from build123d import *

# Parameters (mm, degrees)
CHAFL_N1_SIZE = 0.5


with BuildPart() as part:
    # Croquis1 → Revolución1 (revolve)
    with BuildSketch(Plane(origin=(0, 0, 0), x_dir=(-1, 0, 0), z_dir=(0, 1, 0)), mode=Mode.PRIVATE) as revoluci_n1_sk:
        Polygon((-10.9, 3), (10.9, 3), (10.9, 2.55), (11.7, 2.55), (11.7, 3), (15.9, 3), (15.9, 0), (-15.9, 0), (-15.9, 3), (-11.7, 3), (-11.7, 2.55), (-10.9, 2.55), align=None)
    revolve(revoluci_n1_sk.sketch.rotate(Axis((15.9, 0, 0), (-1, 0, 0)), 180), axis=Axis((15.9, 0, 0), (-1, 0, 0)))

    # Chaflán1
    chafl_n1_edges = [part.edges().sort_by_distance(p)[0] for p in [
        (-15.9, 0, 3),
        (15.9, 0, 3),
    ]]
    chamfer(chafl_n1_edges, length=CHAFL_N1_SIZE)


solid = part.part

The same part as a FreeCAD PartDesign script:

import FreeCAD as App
import Part
import Sketcher
from FreeCAD import Vector
Q = App.Units.Quantity


def edges_at(feature, points):
    """Names of the edges that pass closest to the given points."""
    edges = feature.Shape.Edges
    near = lambda p: min(range(len(edges)), key=lambda i: edges[i].distToShape(Part.Vertex(*p))[0])
    return sorted({f"Edge{near(p) + 1}" for p in points})


def add_polygon(sketch, points):
    """Adds a closed chain of lines whose ends are joined by coincident constraints."""
    first, n = sketch.GeometryCount, len(points)
    for a, b in zip(points, points[1:] + points[:1]):
        sketch.addGeometry(Part.LineSegment(App.Vector(*a, 0), App.Vector(*b, 0)), False)
    for i in range(n):
        sketch.addConstraint(Sketcher.Constraint("Coincident", first + i, 2, first + (i + 1) % n, 1))

doc = App.newDocument("Part")
body = doc.addObject("PartDesign::Body", "Body")

# Sketch on XZ plane
sketch1 = body.newObject("Sketcher::SketchObject", "Sketch")
sketch1.AttachmentSupport = (doc.getObject("XZ_Plane"), [""])
sketch1.MapMode = "FlatFace"
add_polygon(sketch1, [(-10.9, 3), (10.9, 3), (10.9, 2.55), (11.7, 2.55), (11.7, 3), (15.9, 3), (15.9, 0), (-15.9, 0), (-15.9, 3), (-11.7, 3), (-11.7, 2.55), (-10.9, 2.55)])  # lines 0-11
sketch1.addConstraint(Sketcher.Constraint("Horizontal", 0))
sketch1.addConstraint(Sketcher.Constraint("Vertical", 1))
sketch1.addConstraint(Sketcher.Constraint("Horizontal", 2))
sketch1.addConstraint(Sketcher.Constraint("Vertical", 3))
sketch1.addConstraint(Sketcher.Constraint("Horizontal", 4))
sketch1.addConstraint(Sketcher.Constraint("Vertical", 5))
sketch1.addConstraint(Sketcher.Constraint("Horizontal", 6))
sketch1.addConstraint(Sketcher.Constraint("Vertical", 7))
sketch1.addConstraint(Sketcher.Constraint("Horizontal", 8))
sketch1.addConstraint(Sketcher.Constraint("Vertical", 9))
sketch1.addConstraint(Sketcher.Constraint("Horizontal", 10))
sketch1.addConstraint(Sketcher.Constraint("Vertical", 11))
sketch1.addConstraint(Sketcher.Constraint("Symmetric", 5, 2, 6, 2, -1, 1))
sketch1.addConstraint(Sketcher.Constraint("Symmetric", 3, 2, 8, 2, -2))
sketch1.addConstraint(Sketcher.Constraint("Symmetric", 1, 2, 10, 2, -2))
sketch1.addConstraint(Sketcher.Constraint("Horizontal", 0, 2, 3, 2))
sketch1.addConstraint(Sketcher.Constraint("DistanceY", 5, 2, 5, 1, Q("3 mm")))
sketch1.addConstraint(Sketcher.Constraint("DistanceX", 0, 1, 0, 2, Q("21.8 mm")))
sketch1.addConstraint(Sketcher.Constraint("DistanceX", 2, 1, 2, 2, Q("0.8 mm")))
sketch1.addConstraint(Sketcher.Constraint("DistanceX", 4, 1, 4, 2, Q("4.2 mm")))
sketch1.addConstraint(Sketcher.Constraint("DistanceY", 1, 2, 1, 1, Q("0.45 mm")))
revolution = body.newObject("PartDesign::Revolution", "Revolution")
revolution.Profile = sketch1
revolution.ReferenceAxis = (sketch1, ["H_Axis"])
revolution.Angle = 360
doc.recompute()

chamfer = body.newObject("PartDesign::Chamfer", "Chamfer")
chamfer.Base = (revolution, edges_at(revolution, [(-15.9, 0, 3), (15.9, 0, 3)]))
chamfer.Size = 0.5

doc.recompute()
